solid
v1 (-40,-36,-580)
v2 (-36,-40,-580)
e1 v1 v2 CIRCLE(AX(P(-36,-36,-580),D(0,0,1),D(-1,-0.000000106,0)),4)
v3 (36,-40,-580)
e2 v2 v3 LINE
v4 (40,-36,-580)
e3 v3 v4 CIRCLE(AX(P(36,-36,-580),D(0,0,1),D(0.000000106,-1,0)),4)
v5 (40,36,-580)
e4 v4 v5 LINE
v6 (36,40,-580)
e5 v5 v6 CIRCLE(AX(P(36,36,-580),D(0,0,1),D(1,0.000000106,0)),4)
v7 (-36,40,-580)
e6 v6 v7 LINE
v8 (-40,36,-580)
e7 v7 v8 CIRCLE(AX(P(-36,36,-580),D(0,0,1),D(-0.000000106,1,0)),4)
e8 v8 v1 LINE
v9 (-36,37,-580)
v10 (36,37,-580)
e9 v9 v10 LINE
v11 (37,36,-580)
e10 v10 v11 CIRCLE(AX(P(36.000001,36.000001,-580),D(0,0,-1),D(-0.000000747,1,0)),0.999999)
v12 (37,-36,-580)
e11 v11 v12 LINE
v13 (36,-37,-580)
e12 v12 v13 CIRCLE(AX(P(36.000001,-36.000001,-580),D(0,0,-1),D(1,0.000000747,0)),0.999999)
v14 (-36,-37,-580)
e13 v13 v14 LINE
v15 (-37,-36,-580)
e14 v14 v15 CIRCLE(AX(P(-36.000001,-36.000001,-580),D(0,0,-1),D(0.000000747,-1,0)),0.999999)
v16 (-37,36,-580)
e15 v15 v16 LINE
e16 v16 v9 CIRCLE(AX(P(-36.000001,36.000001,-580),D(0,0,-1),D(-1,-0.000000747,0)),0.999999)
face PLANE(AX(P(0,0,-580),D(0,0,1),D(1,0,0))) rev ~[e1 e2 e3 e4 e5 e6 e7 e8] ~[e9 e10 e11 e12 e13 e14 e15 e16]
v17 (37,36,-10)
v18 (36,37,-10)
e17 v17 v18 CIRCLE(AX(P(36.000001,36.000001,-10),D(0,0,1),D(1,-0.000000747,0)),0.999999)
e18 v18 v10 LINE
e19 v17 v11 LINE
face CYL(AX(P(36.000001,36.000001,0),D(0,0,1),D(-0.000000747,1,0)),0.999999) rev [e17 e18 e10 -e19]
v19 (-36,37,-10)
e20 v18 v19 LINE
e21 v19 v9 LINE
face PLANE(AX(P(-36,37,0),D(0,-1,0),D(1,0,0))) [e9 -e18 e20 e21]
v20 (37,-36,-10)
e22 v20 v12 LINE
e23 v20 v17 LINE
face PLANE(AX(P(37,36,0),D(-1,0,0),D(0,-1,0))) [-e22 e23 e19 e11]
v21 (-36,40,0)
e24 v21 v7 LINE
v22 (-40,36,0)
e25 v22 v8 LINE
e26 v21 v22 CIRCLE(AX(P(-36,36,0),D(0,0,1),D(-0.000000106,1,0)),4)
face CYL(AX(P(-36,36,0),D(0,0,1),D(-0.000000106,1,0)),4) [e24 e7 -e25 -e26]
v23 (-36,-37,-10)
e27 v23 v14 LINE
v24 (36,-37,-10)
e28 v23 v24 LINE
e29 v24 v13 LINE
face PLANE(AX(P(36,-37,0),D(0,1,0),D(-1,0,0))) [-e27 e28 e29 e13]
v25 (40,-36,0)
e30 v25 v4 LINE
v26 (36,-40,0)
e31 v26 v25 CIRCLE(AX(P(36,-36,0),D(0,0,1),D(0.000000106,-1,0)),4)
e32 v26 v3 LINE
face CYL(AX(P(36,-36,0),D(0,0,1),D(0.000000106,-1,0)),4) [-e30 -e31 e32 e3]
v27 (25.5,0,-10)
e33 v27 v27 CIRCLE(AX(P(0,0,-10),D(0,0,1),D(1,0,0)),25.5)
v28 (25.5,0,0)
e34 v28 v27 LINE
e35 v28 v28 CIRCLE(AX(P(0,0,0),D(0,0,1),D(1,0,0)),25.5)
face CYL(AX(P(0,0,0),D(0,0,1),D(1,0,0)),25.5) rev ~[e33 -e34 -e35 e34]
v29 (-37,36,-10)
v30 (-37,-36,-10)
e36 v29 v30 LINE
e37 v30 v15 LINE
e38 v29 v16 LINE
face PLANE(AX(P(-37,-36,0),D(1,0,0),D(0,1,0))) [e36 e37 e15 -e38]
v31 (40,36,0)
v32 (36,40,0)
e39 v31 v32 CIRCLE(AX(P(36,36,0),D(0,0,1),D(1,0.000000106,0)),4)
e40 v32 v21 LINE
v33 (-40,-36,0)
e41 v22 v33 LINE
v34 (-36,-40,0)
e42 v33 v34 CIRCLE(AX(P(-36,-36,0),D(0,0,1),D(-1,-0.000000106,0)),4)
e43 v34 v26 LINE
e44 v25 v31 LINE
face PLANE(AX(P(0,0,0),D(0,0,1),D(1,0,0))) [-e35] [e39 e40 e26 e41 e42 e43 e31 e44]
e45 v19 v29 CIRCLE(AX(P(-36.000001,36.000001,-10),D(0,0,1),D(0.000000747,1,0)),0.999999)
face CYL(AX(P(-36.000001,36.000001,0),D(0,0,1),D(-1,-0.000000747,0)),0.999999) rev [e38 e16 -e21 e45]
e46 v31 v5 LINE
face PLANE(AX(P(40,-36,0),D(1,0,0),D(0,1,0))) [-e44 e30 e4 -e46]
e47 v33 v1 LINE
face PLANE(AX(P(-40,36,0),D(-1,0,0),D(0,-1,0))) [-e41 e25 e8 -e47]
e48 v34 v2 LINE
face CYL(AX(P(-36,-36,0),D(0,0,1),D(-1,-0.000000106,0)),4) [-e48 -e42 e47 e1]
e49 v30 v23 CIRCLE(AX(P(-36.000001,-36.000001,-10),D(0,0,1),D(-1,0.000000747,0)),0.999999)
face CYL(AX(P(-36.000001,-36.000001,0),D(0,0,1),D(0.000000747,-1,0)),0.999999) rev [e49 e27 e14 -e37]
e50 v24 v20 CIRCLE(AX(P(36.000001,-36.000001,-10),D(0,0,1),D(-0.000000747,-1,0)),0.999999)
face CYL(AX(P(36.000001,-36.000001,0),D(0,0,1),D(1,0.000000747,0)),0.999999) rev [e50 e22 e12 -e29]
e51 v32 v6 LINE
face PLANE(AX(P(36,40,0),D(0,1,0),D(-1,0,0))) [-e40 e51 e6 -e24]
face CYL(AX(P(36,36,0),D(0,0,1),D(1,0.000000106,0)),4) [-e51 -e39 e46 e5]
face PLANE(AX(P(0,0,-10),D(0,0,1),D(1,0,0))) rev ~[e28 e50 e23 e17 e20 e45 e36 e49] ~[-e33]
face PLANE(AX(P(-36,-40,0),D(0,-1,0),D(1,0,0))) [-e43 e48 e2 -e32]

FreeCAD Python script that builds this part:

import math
import FreeCAD as App
import Part
import Sketcher

V = App.Vector
Q = App.Units.Quantity

doc = App.newDocument("Part")
params = doc.addObject("Spreadsheet::Sheet", "Params")
for row, (alias, value) in enumerate([
    ("sketch1_radius", "4 mm"),
    ("sketch1_radius2", "0.999999 mm"),
    ("sketch1_width", "72 mm"),
    ("pad1_length", "580 mm"),
    ("sketch2_diameter", "51 mm"),
    ("sketch2_radius", "0.999999 mm"),
    ("sketch2_width", "72 mm"),
    ("pad2_length", "10 mm"),
], start=1):
    params.set(f"A{row}", alias)
    params.set(f"B{row}", "=" + value)
    params.setAlias(f"B{row}", alias)

body = doc.addObject("PartDesign::Body", "Body")

# Sketch on XY plane
sketch1 = doc.addObject("Sketcher::SketchObject", "Sketch")
body.addObject(sketch1)
sketch1.AttachmentSupport = (doc.XY_Plane, [""])
sketch1.MapMode = "FlatFace"
sketch1.addGeometry(Part.ArcOfCircle(Part.Circle(V(36, 36, 0), V(0, 0, 1), 4), math.radians(0), math.radians(90)), False)
sketch1.addGeometry(Part.LineSegment(V(36, 40, 0), V(-36, 40, 0)), False)
sketch1.addGeometry(Part.ArcOfCircle(Part.Circle(V(-36, 36, 0), V(0, 0, 1), 4), math.radians(90), math.radians(180)), False)
sketch1.addGeometry(Part.LineSegment(V(-40, 36, 0), V(-40, -36, 0)), False)
sketch1.addGeometry(Part.ArcOfCircle(Part.Circle(V(-36, -36, 0), V(0, 0, 1), 4), math.radians(-180), math.radians(-90)), False)
sketch1.addGeometry(Part.LineSegment(V(-36, -40, 0), V(36, -40, 0)), False)
sketch1.addGeometry(Part.ArcOfCircle(Part.Circle(V(36, -36, 0), V(0, 0, 1), 4), math.radians(-90), math.radians(0)), False)
sketch1.addGeometry(Part.LineSegment(V(40, -36, 0), V(40, 36, 0)), False)
sketch1.addGeometry(Part.LineSegment(V(-37, -36, 0), V(-37, 36, 0)), False)
sketch1.addGeometry(Part.ArcOfCircle(Part.Circle(V(-36, 36, 0), V(0, 0, 1), 1), math.radians(90), math.radians(180)), False)
sketch1.addGeometry(Part.LineSegment(V(-36, 37, 0), V(36, 37, 0)), False)
sketch1.addGeometry(Part.ArcOfCircle(Part.Circle(V(36, 36, 0), V(0, 0, 1), 1), math.radians(0), math.radians(90)), False)
sketch1.addGeometry(Part.LineSegment(V(37, 36, 0), V(37, -36, 0)), False)
sketch1.addGeometry(Part.ArcOfCircle(Part.Circle(V(36, -36, 0), V(0, 0, 1), 1), math.radians(-90), math.radians(0)), False)
sketch1.addGeometry(Part.LineSegment(V(36, -37, 0), V(-36, -37, 0)), False)
sketch1.addGeometry(Part.ArcOfCircle(Part.Circle(V(-36, -36, 0), V(0, 0, 1), 1), math.radians(180), math.radians(270)), False)
sketch1.addConstraint(Sketcher.Constraint("Tangent", 0, 2, 1, 1))
sketch1.addConstraint(Sketcher.Constraint("Tangent", 1, 2, 2, 1))
sketch1.addConstraint(Sketcher.Constraint("Tangent", 2, 2, 3, 1))
sketch1.addConstraint(Sketcher.Constraint("Tangent", 3, 2, 4, 1))
sketch1.addConstraint(Sketcher.Constraint("Tangent", 4, 2, 5, 1))
sketch1.addConstraint(Sketcher.Constraint("Tangent", 5, 2, 6, 1))
sketch1.addConstraint(Sketcher.Constraint("Tangent", 6, 2, 7, 1))
sketch1.addConstraint(Sketcher.Constraint("Tangent", 7, 2, 0, 1))
sketch1.addConstraint(Sketcher.Constraint("Tangent", 8, 2, 9, 2))
sketch1.addConstraint(Sketcher.Constraint("Tangent", 9, 1, 10, 1))
sketch1.addConstraint(Sketcher.Constraint("Tangent", 10, 2, 11, 2))
sketch1.addConstraint(Sketcher.Constraint("Tangent", 11, 1, 12, 1))
sketch1.addConstraint(Sketcher.Constraint("Tangent", 12, 2, 13, 2))
sketch1.addConstraint(Sketcher.Constraint("Tangent", 13, 1, 14, 1))
sketch1.addConstraint(Sketcher.Constraint("Tangent", 14, 2, 15, 2))
sketch1.addConstraint(Sketcher.Constraint("Tangent", 15, 1, 8, 1))
sketch1.addConstraint(Sketcher.Constraint("Horizontal", 1))
sketch1.addConstraint(Sketcher.Constraint("Vertical", 3))
sketch1.addConstraint(Sketcher.Constraint("Horizontal", 5))
sketch1.addConstraint(Sketcher.Constraint("Vertical", 7))
sketch1.addConstraint(Sketcher.Constraint("Vertical", 8))
sketch1.addConstraint(Sketcher.Constraint("Horizontal", 10))
sketch1.addConstraint(Sketcher.Constraint("Vertical", 12))
sketch1.addConstraint(Sketcher.Constraint("Horizontal", 14))
sketch1.addConstraint(Sketcher.Constraint("Coincident", 9, 3, 2, 3))
sketch1.addConstraint(Sketcher.Constraint("Coincident", 11, 3, 0, 3))
sketch1.addConstraint(Sketcher.Constraint("Coincident", 13, 3, 6, 3))
sketch1.addConstraint(Sketcher.Constraint("Equal", 0, 2))
sketch1.addConstraint(Sketcher.Constraint("Equal", 2, 4))
sketch1.addConstraint(Sketcher.Constraint("Equal", 4, 6))
sketch1.addConstraint(Sketcher.Constraint("Equal", 13, 15))
sketch1.addConstraint(Sketcher.Constraint("Symmetric", 0, 3, 4, 3, -1, 1))
sketch1.addConstraint(Sketcher.Constraint("Equal", 14, 3))
sketch1.addConstraint(Sketcher.Constraint("Radius", 0, Q("4 mm")))
sketch1.addConstraint(Sketcher.Constraint("Radius", 9, Q("0.999999 mm")))
sketch1.addConstraint(Sketcher.Constraint("DistanceX", 1, 2, 1, 1, Q("72 mm")))
sketch1.setExpression("Constraints[33]", "Params.sketch1_radius")
sketch1.setExpression("Constraints[34]", "Params.sketch1_radius2")
sketch1.setExpression("Constraints[35]", "Params.sketch1_width")
pad1 = doc.addObject("PartDesign::Pad", "Pad")
body.addObject(pad1)
pad1.Profile = sketch1
pad1.setExpression("Length", "Params.pad1_length")
pad1.Reversed = True

# Sketch on XY plane
sketch2 = doc.addObject("Sketcher::SketchObject", "Sketch001")
body.addObject(sketch2)
sketch2.AttachmentSupport = (doc.XY_Plane, [""])
sketch2.MapMode = "FlatFace"
sketch2.addGeometry(Part.LineSegment(V(36, 37, 0), V(-36, 37, 0)), False)
sketch2.addGeometry(Part.ArcOfCircle(Part.Circle(V(-36, 36, 0), V(0, 0, 1), 1), math.radians(90), math.radians(180)), False)
sketch2.addGeometry(Part.LineSegment(V(-37, 36, 0), V(-37, -36, 0)), False)
sketch2.addGeometry(Part.ArcOfCircle(Part.Circle(V(-36, -36, 0), V(0, 0, 1), 1), math.radians(180), math.radians(270)), False)
sketch2.addGeometry(Part.LineSegment(V(-36, -37, 0), V(36, -37, 0)), False)
sketch2.addGeometry(Part.ArcOfCircle(Part.Circle(V(36, -36, 0), V(0, 0, 1), 1), math.radians(-90), math.radians(0)), False)
sketch2.addGeometry(Part.LineSegment(V(37, -36, 0), V(37, 36, 0)), False)
sketch2.addGeometry(Part.ArcOfCircle(Part.Circle(V(36, 36, 0), V(0, 0, 1), 1), math.radians(0), math.radians(90)), False)
sketch2.addGeometry(Part.Circle(V(0, 0, 0), V(0, 0, 1), 25.5), False)
sketch2.addConstraint(Sketcher.Constraint("Tangent", 0, 2, 1, 1))
sketch2.addConstraint(Sketcher.Constraint("Tangent", 1, 2, 2, 1))
sketch2.addConstraint(Sketcher.Constraint("Tangent", 2, 2, 3, 1))
sketch2.addConstraint(Sketcher.Constraint("Tangent", 3, 2, 4, 1))
sketch2.addConstraint(Sketcher.Constraint("Tangent", 4, 2, 5, 1))
sketch2.addConstraint(Sketcher.Constraint("Tangent", 5, 2, 6, 1))
sketch2.addConstraint(Sketcher.Constraint("Tangent", 6, 2, 7, 1))
sketch2.addConstraint(Sketcher.Constraint("Tangent", 7, 2, 0, 1))
sketch2.addConstraint(Sketcher.Constraint("Horizontal", 0))
sketch2.addConstraint(Sketcher.Constraint("Vertical", 2))
sketch2.addConstraint(Sketcher.Constraint("Horizontal", 4))
sketch2.addConstraint(Sketcher.Constraint("Vertical", 6))
sketch2.addConstraint(Sketcher.Constraint("Coincident", 8, 3, -1, 1))
sketch2.addConstraint(Sketcher.Constraint("Equal", 1, 3))
sketch2.addConstraint(Sketcher.Constraint("Equal", 3, 5))
sketch2.addConstraint(Sketcher.Constraint("Equal", 5, 7))
sketch2.addConstraint(Sketcher.Constraint("Symmetric", 1, 3, 5, 3, -1, 1))
sketch2.addConstraint(Sketcher.Constraint("Equal", 4, 2))
sketch2.addConstraint(Sketcher.Constraint("Diameter", 8, Q("51 mm")))
sketch2.addConstraint(Sketcher.Constraint("Radius", 1, Q("0.999999 mm")))
sketch2.addConstraint(Sketcher.Constraint("DistanceX", 0, 2, 0, 1, Q("72 mm")))
sketch2.setExpression("Constraints[18]", "Params.sketch2_diameter")
sketch2.setExpression("Constraints[19]", "Params.sketch2_radius")
sketch2.setExpression("Constraints[20]", "Params.sketch2_width")
pad2 = doc.addObject("PartDesign::Pad", "Pad001")
body.addObject(pad2)
pad2.Profile = sketch2
pad2.setExpression("Length", "Params.pad2_length")
pad2.Reversed = True

doc.recompute()
